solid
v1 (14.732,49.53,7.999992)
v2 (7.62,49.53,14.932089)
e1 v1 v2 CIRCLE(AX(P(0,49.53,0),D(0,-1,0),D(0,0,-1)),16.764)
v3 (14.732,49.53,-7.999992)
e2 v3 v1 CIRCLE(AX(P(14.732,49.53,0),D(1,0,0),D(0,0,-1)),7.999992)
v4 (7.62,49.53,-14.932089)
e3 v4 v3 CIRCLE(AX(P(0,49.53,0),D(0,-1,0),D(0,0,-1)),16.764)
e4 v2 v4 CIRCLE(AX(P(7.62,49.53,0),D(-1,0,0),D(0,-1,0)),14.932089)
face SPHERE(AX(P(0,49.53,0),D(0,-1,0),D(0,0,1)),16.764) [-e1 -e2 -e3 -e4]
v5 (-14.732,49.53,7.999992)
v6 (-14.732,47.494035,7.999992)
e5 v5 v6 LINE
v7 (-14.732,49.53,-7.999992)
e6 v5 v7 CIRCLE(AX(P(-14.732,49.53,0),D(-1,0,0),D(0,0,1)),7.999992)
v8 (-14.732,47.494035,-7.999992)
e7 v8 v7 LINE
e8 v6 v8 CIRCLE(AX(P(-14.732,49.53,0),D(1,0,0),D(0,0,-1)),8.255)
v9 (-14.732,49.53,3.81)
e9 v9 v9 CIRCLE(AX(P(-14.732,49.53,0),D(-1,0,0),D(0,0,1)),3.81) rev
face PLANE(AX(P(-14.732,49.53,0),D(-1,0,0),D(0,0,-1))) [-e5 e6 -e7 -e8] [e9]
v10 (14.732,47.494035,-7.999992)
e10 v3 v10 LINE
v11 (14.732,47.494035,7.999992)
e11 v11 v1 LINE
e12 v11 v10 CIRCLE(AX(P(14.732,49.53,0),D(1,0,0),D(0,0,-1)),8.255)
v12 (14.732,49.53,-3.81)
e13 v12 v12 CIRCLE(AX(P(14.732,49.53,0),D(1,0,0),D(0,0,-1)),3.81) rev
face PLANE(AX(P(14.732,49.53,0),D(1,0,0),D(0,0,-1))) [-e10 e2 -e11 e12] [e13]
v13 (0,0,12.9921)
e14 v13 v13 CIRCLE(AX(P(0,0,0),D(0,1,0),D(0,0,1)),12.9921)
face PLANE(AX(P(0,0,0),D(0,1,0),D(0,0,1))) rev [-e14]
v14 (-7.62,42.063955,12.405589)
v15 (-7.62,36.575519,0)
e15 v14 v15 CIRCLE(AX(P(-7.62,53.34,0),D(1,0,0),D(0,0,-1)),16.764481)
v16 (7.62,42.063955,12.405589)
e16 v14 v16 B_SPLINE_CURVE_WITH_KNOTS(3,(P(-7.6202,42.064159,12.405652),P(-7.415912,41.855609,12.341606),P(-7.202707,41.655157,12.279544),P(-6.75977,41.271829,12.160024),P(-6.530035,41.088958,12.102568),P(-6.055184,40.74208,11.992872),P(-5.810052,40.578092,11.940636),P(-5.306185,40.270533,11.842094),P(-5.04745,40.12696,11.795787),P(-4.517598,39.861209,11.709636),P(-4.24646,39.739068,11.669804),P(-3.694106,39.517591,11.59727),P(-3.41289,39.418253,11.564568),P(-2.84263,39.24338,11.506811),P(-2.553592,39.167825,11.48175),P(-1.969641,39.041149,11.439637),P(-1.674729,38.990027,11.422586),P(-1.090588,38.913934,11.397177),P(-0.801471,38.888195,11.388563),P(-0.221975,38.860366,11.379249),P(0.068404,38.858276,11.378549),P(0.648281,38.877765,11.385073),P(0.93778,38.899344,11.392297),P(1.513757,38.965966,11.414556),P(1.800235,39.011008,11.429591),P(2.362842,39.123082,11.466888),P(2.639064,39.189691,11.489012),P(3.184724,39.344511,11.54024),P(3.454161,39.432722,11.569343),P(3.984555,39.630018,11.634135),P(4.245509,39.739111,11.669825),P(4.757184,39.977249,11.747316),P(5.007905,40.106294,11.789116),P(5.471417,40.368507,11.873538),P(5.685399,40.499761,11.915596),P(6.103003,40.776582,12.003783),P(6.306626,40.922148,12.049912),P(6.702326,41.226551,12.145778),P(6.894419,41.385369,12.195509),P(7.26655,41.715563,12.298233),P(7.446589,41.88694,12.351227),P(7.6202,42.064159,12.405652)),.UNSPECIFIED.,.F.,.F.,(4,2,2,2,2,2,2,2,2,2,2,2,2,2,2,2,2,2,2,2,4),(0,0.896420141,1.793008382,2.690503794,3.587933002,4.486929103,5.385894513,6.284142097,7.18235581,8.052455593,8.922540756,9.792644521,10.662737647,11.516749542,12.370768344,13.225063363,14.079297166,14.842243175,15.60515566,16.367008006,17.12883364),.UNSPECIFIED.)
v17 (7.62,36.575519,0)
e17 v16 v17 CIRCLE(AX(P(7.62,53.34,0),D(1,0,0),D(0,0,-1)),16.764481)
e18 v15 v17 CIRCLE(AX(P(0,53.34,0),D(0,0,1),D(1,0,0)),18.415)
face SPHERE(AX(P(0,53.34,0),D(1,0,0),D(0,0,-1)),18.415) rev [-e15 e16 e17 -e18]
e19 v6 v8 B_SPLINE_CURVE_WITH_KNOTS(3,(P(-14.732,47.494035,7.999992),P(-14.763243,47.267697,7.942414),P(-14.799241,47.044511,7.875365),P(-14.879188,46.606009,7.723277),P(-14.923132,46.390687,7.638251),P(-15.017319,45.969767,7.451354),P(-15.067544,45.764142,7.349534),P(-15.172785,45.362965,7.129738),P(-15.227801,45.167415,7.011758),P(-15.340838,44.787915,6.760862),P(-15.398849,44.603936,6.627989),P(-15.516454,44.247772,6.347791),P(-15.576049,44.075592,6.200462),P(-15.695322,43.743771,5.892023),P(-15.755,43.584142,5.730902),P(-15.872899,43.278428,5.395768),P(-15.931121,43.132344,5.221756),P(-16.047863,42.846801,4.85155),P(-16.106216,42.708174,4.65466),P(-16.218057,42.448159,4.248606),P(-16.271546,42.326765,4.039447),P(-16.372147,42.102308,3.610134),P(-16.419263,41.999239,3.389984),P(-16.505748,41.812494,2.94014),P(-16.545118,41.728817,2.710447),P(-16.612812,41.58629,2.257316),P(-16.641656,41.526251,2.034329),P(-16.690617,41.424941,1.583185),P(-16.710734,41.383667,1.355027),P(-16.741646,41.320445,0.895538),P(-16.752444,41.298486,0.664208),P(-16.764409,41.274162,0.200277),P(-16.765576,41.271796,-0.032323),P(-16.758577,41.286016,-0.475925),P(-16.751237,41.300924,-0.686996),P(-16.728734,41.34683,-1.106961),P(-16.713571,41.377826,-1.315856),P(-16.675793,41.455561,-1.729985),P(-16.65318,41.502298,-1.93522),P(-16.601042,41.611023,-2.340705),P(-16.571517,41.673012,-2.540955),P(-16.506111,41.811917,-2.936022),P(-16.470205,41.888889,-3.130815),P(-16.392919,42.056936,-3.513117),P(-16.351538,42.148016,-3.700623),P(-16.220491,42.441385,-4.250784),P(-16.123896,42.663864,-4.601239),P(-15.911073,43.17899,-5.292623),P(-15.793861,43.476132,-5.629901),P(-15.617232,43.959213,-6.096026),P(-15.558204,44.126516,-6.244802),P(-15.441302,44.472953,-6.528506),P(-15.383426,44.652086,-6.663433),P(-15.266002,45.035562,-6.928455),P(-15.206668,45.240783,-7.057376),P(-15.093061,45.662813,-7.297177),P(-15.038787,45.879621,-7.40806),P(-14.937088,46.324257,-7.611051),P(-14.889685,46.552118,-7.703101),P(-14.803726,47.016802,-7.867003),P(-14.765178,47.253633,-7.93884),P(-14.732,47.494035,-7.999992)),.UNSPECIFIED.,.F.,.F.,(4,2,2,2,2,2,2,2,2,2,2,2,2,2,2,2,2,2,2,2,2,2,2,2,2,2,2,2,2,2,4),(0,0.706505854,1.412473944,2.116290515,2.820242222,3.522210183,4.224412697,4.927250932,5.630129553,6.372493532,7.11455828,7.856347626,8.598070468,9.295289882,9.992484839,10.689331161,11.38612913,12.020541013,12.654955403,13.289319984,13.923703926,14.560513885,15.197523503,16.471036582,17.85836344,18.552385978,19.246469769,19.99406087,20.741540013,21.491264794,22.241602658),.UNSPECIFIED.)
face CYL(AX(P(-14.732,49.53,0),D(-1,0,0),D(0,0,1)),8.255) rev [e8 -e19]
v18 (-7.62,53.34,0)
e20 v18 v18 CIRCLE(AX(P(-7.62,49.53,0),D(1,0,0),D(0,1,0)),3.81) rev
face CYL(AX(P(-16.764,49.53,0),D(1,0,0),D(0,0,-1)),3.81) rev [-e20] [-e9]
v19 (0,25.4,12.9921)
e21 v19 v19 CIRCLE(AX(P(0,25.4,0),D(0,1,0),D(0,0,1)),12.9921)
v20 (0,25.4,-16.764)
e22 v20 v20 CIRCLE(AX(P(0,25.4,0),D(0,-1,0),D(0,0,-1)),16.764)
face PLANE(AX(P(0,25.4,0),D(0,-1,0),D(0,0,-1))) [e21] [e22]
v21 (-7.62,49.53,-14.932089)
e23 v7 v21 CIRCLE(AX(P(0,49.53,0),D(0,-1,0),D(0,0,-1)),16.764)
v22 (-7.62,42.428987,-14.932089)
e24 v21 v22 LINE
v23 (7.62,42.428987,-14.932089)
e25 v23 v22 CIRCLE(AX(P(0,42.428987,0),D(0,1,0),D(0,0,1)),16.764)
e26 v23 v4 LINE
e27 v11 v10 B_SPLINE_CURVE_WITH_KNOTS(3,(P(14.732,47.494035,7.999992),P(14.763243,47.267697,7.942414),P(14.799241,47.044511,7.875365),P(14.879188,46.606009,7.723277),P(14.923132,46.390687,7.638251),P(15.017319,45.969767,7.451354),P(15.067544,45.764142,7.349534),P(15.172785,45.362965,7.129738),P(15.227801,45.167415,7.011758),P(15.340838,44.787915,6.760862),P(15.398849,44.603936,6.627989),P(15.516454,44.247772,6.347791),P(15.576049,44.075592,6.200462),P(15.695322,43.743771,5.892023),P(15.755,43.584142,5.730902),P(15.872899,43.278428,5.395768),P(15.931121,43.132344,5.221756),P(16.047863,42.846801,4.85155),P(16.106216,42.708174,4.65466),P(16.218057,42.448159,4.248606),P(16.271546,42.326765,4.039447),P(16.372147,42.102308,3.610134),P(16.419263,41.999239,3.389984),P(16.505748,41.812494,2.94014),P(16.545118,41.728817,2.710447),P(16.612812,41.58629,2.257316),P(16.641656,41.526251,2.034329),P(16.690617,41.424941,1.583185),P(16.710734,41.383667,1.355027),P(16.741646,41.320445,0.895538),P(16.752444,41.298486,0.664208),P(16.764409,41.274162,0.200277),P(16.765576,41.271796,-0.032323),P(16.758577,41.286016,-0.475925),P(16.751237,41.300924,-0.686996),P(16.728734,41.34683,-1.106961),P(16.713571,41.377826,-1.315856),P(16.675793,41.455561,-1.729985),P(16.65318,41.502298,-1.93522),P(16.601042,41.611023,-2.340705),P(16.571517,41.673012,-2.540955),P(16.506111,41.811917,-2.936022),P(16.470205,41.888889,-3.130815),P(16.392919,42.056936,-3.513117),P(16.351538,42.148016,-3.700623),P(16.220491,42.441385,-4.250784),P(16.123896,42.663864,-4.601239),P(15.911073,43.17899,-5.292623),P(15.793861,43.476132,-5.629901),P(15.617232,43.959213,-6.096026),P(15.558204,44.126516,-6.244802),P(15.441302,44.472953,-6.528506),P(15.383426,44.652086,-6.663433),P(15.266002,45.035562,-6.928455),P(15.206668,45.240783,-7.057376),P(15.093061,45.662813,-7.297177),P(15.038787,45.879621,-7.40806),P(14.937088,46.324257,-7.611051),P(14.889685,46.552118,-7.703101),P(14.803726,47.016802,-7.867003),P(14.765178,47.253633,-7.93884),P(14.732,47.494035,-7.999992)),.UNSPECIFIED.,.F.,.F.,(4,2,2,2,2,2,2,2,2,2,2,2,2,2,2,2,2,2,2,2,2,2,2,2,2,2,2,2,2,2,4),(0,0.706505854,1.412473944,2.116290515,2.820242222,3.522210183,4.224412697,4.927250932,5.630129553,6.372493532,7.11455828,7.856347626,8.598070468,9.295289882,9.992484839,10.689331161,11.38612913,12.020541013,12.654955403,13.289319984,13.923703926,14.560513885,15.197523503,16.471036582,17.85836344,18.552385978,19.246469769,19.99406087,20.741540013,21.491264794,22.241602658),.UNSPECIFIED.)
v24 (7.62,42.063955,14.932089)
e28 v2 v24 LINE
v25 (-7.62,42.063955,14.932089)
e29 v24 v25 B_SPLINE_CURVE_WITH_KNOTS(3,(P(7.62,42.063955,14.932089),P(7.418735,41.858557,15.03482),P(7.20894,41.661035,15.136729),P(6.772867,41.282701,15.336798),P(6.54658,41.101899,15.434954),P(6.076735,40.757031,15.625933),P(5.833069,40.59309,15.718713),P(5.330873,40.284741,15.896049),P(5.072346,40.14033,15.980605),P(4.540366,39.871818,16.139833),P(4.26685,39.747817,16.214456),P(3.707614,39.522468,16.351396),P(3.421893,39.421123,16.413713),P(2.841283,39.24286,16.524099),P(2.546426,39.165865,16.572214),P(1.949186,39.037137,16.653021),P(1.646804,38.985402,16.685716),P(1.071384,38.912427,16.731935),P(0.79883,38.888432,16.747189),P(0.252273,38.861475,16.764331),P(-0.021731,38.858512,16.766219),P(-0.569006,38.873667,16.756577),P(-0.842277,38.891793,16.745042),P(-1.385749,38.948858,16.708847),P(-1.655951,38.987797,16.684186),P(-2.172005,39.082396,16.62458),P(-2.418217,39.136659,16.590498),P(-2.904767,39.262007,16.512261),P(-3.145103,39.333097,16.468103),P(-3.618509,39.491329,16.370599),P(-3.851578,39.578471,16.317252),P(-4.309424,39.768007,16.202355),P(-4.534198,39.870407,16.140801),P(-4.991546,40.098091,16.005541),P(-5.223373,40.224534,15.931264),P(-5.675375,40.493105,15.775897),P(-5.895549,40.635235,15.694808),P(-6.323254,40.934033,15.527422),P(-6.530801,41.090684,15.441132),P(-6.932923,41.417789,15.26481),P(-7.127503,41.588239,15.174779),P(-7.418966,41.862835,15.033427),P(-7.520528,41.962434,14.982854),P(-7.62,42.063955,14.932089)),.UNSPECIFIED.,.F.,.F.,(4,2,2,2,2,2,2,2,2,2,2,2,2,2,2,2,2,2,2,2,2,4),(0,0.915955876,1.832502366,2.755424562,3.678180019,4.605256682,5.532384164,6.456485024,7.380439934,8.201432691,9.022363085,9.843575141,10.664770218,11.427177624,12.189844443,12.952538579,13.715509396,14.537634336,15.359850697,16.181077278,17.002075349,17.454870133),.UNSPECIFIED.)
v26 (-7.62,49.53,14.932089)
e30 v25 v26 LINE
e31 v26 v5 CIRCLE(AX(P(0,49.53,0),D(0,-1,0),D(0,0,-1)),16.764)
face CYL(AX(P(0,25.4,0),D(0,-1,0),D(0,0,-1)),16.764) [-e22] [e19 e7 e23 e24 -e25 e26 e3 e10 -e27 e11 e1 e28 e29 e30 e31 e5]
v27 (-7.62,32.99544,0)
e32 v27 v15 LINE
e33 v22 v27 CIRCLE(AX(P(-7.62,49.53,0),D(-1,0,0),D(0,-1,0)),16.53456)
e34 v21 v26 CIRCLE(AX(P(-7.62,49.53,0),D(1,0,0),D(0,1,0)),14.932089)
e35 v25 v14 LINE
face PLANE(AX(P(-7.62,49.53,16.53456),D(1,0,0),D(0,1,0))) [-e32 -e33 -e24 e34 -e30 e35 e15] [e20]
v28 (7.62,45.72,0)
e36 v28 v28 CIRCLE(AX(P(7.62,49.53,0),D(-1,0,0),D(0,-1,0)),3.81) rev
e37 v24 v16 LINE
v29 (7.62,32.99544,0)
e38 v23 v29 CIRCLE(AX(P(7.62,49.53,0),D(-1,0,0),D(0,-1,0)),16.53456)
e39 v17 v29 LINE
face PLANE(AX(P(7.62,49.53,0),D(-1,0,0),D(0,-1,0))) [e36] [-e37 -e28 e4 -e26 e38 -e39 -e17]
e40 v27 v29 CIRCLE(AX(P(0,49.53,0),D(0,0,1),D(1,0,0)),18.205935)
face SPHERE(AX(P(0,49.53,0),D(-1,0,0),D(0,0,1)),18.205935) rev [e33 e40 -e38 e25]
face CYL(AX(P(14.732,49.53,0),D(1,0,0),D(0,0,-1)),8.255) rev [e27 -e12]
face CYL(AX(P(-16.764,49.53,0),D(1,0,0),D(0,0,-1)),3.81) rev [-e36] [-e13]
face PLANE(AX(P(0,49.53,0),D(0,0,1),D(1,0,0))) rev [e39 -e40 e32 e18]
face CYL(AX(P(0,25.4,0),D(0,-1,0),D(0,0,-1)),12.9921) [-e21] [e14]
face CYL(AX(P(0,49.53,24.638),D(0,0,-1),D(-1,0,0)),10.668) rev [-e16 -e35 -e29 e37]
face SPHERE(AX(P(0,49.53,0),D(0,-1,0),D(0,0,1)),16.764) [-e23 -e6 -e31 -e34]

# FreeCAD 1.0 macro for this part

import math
import FreeCAD as App
import Part
import Sketcher
from FreeCAD import Vector
Q = App.Units.Quantity

doc = App.newDocument("Part")
params = doc.addObject("Spreadsheet::Sheet", "Params")
for row, (alias, value) in enumerate([
    ("sketch1_diameter", "1.023 in"),
    ("pad1_length", "1 in"),
    ("sketch2_radius", "0.66 in"),
    ("sketch2_width", "0.95 in"),
    ("revolution_angle", "360 deg"),
    ("sketch3_diameter", "0.3 in"),
    ("sketch4_width", "0.6 in"),
    ("groove_angle", "270 deg"),
    ("sketch5_width", "0.6 in"),
    ("sketch5_radius", "0.725 in"),
    ("groove2_angle", "270 deg"),
    ("sketch6_diameter", "0.65 in"),
    ("pocket2_length", "0.08 in"),
    ("sketch7_radius", "0.42 in"),
    ("sketch7_width", "0.6 in"),
    ("pocket3_length", "0.97 in"),
], start=1):
    params.set(f"A{row}", alias)
    params.set(f"B{row}", "=" + value)
    params.setAlias(f"B{row}", alias)

body = doc.addObject("PartDesign::Body", "Body")

sketch1 = doc.addObject("Sketcher::SketchObject", "Sketch")
body.addObject(sketch1)
sketch1.AttachmentSupport = (doc.XZ_Plane, [""])
sketch1.MapMode = "FlatFace"
sketch1.addGeometry(Part.Circle(Vector(0, 0, 0), Vector(0, 0, 1), 13), False)
sketch1.addConstraint(Sketcher.Constraint("Coincident", 0, 3, -1, 1))
sketch1.addConstraint(Sketcher.Constraint("Diameter", 0, Q("1.023 in")))
sketch1.setExpression("Constraints[1]", "Params.sketch1_diameter")
pad1 = doc.addObject("PartDesign::Pad", "Pad")
body.addObject(pad1)
pad1.Profile = sketch1
pad1.setExpression("Length", "Params.pad1_length")
pad1.Reversed = True

sketch2 = doc.addObject("Sketcher::SketchObject", "Sketch001")
body.addObject(sketch2)
sketch2.AttachmentSupport = (doc.YZ_Plane, [""])
sketch2.MapMode = "FlatFace"
sketch2.addGeometry(Part.LineSegment(Vector(50, 17, 0), Vector(25, 17, 0)), False)
sketch2.addGeometry(Part.LineSegment(Vector(25, 17, 0), Vector(25, 0, 0)), False)
sketch2.addGeometry(Part.LineSegment(Vector(25, 0, 0), Vector(66, 0, 0)), False)
sketch2.addGeometry(Part.ArcOfCircle(Part.Circle(Vector(50, 0, 0), Vector(0, 0, 1), 17), math.radians(0), math.radians(90)), False)
sketch2.addConstraint(Sketcher.Constraint("Coincident", 0, 2, 1, 1))
sketch2.addConstraint(Sketcher.Constraint("Coincident", 1, 2, 2, 1))
sketch2.addConstraint(Sketcher.Constraint("Coincident", 2, 2, 3, 1))
sketch2.addConstraint(Sketcher.Constraint("Tangent", 3, 2, 0, 1))
sketch2.addConstraint(Sketcher.Constraint("Horizontal", 0))
sketch2.addConstraint(Sketcher.Constraint("Vertical", 1))
sketch2.addConstraint(Sketcher.Constraint("Horizontal", 2))
sketch2.addConstraint(Sketcher.Constraint("PointOnObject", 3, 3, -1))
sketch2.addConstraint(Sketcher.Constraint("PointOnObject", 1, 2, -1))
sketch2.addConstraint(Sketcher.Constraint("Radius", 3, Q("0.66 in")))
sketch2.addConstraint(Sketcher.Constraint("DistanceX", -1, 1, 0, 2, Q("1 in")))
sketch2.addConstraint(Sketcher.Constraint("DistanceX", 0, 2, 0, 1, Q("0.95 in")))
sketch2.setExpression("Constraints[9]", "Params.sketch2_radius")
sketch2.setExpression("Constraints[11]", "Params.sketch2_width")
revolution = doc.addObject("PartDesign::Revolution", "Revolution")
body.addObject(revolution)
revolution.Profile = sketch2
revolution.ReferenceAxis = (sketch2, ["H_Axis"])
revolution.setExpression("Angle", "Params.revolution_angle")

sketch3 = doc.addObject("Sketcher::SketchObject", "Sketch002")
body.addObject(sketch3)
sketch3.AttachmentSupport = (doc.YZ_Plane, [""])
sketch3.MapMode = "FlatFace"
sketch3.addGeometry(Part.Circle(Vector(49.5, 0, 0), Vector(0, 0, 1), 3.8), False)
sketch3.addConstraint(Sketcher.Constraint("PointOnObject", 0, 3, -1))
sketch3.addConstraint(Sketcher.Constraint("Diameter", 0, Q("0.3 in")))
sketch3.addConstraint(Sketcher.Constraint("DistanceX", -1, 1, 0, 3, Q("1.95 in")))
sketch3.setExpression("Constraints[1]", "Params.sketch3_diameter")
pocket1 = doc.addObject("PartDesign::Pocket", "Pocket")
body.addObject(pocket1)
pocket1.Profile = sketch3
pocket1.Type = "ThroughAll"
pocket1.Midplane = True

sketch4 = doc.addObject("Sketcher::SketchObject", "Sketch003")
body.addObject(sketch4)
sketch4.AttachmentSupport = (doc.XY_Plane, [""])
sketch4.MapMode = "FlatFace"
sketch4.addGeometry(Part.LineSegment(Vector(-8, 50, 0), Vector(-8, 33, 0)), False)
sketch4.addGeometry(Part.ArcOfCircle(Part.Circle(Vector(0, 50, 0), Vector(0, 0, 1), 18), math.radians(-115), math.radians(-65)), False)
sketch4.addGeometry(Part.LineSegment(Vector(8, 33, 0), Vector(8, 50, 0)), False)
sketch4.addGeometry(Part.LineSegment(Vector(8, 50, 0), Vector(-8, 50, 0)), False)
sketch4.addGeometry(Part.LineSegment(Vector(-8, 50, 0), Vector(8, 50, 0)), True)
sketch4.addConstraint(Sketcher.Constraint("Coincident", 0, 2, 1, 1))
sketch4.addConstraint(Sketcher.Constraint("Coincident", 1, 2, 2, 1))
sketch4.addConstraint(Sketcher.Constraint("Coincident", 2, 2, 3, 1))
sketch4.addConstraint(Sketcher.Constraint("Coincident", 3, 2, 0, 1))
sketch4.addConstraint(Sketcher.Constraint("Vertical", 0))
sketch4.addConstraint(Sketcher.Constraint("Vertical", 2))
sketch4.addConstraint(Sketcher.Constraint("Horizontal", 3))
sketch4.addConstraint(Sketcher.Constraint("Horizontal", 4))
sketch4.addConstraint(Sketcher.Constraint("Coincident", 4, 1, 3, 2))
sketch4.addConstraint(Sketcher.Constraint("Symmetric", 0, 2, 1, 2, -2))
sketch4.addConstraint(Sketcher.Constraint("Horizontal", 1, 3, 2, 2))
sketch4.addConstraint(Sketcher.Constraint("Vertical", 1, 2, 4, 2))
sketch4.addConstraint(Sketcher.Constraint("DistanceX", 3, 2, 3, 1, Q("0.6 in")))
sketch4.addConstraint(Sketcher.Constraint("DistanceY", -1, 1, 1, 3, Q("1.95 in")))
sketch4.addConstraint(Sketcher.Constraint("Radius", 1, 18.205935))
sketch4.setExpression("Constraints[12]", "Params.sketch4_width")
groove = doc.addObject("PartDesign::Groove", "Groove")
body.addObject(groove)
groove.Profile = sketch4
groove.ReferenceAxis = (sketch4, ["Axis0"])
groove.setExpression("Angle", "Params.groove_angle")

sketch5 = doc.addObject("Sketcher::SketchObject", "Sketch004")
body.addObject(sketch5)
sketch5.AttachmentSupport = (doc.XY_Plane, [""])
sketch5.MapMode = "FlatFace"
sketch5.addGeometry(Part.LineSegment(Vector(8, 53, 0), Vector(-8, 53, 0)), False)
sketch5.addGeometry(Part.LineSegment(Vector(-8, 53, 0), Vector(-8, 37, 0)), False)
sketch5.addGeometry(Part.ArcOfCircle(Part.Circle(Vector(0, 53, 0), Vector(0, 0, 1), 18), math.radians(-114), math.radians(-66)), False)
sketch5.addGeometry(Part.LineSegment(Vector(8, 37, 0), Vector(8, 53, 0)), False)
sketch5.addGeometry(Part.LineSegment(Vector(8, 53, 0), Vector(-8, 53, 0)), True)
sketch5.addConstraint(Sketcher.Constraint("Coincident", 0, 2, 1, 1))
sketch5.addConstraint(Sketcher.Constraint("Coincident", 1, 2, 2, 1))
sketch5.addConstraint(Sketcher.Constraint("Coincident", 2, 2, 3, 1))
sketch5.addConstraint(Sketcher.Constraint("Coincident", 3, 2, 0, 1))
sketch5.addConstraint(Sketcher.Constraint("Horizontal", 0))
sketch5.addConstraint(Sketcher.Constraint("Vertical", 1))
sketch5.addConstraint(Sketcher.Constraint("Vertical", 3))
sketch5.addConstraint(Sketcher.Constraint("Horizontal", 4))
sketch5.addConstraint(Sketcher.Constraint("Coincident", 4, 1, 3, 2))
sketch5.addConstraint(Sketcher.Constraint("Symmetric", 1, 2, 2, 2, -2))
sketch5.addConstraint(Sketcher.Constraint("Horizontal", 2, 3, 0, 2))
sketch5.addConstraint(Sketcher.Constraint("Vertical", 1, 2, 4, 2))
sketch5.addConstraint(Sketcher.Constraint("DistanceX", 0, 2, 0, 1, Q("0.6 in")))
sketch5.addConstraint(Sketcher.Constraint("Radius", 2, Q("0.725 in")))
sketch5.addConstraint(Sketcher.Constraint("DistanceY", -1, 1, 2, 3, Q("2.1 in")))
sketch5.setExpression("Constraints[12]", "Params.sketch5_width")
sketch5.setExpression("Constraints[13]", "Params.sketch5_radius")
groove2 = doc.addObject("PartDesign::Groove", "Groove001")
body.addObject(groove2)
groove2.Profile = sketch5
groove2.ReferenceAxis = (sketch5, ["Axis0"])
groove2.setExpression("Angle", "Params.groove2_angle")

sketch6 = doc.addObject("Sketcher::SketchObject", "Sketch005")
body.addObject(sketch6)
sketch6.AttachmentSupport = (doc.YZ_Plane, [""])
sketch6.MapMode = "FlatFace"
sketch6.AttachmentOffset = App.Placement(Vector(0, 0, 0.66 * 25.4), App.Rotation())
sketch6.addGeometry(Part.Circle(Vector(50, 0, 0), Vector(0, 0, 1), 8), False)
sketch6.addConstraint(Sketcher.Constraint("PointOnObject", 0, 3, -1))
sketch6.addConstraint(Sketcher.Constraint("Diameter", 0, Q("0.65 in")))
sketch6.addConstraint(Sketcher.Constraint("DistanceX", -1, 1, 0, 3, Q("1.95 in")))
sketch6.setExpression("Constraints[1]", "Params.sketch6_diameter")
pocket2 = doc.addObject("PartDesign::Pocket", "Pocket001")
body.addObject(pocket2)
pocket2.Profile = sketch6
pocket2.setExpression("Length", "Params.pocket2_length")
doc.recompute()

mirrored = doc.addObject("PartDesign::Mirrored", "Mirrored")
body.addObject(mirrored)
mirrored.Originals = [pocket2]
mirrored.MirrorPlane = (doc.YZ_Plane, [""])
body.Tip = mirrored

sketch7 = doc.addObject("Sketcher::SketchObject", "Sketch006")
body.addObject(sketch7)
sketch7.AttachmentSupport = (doc.XY_Plane, [""])
sketch7.MapMode = "FlatFace"
sketch7.addGeometry(Part.LineSegment(Vector(-8, 50, 0), Vector(-8, 42, 0)), False)
sketch7.addGeometry(Part.ArcOfCircle(Part.Circle(Vector(0, 50, 0), Vector(0, 0, 1), 11), math.radians(-136), math.radians(-44)), False)
sketch7.addGeometry(Part.LineSegment(Vector(8, 42, 0), Vector(8, 50, 0)), False)
sketch7.addGeometry(Part.LineSegment(Vector(8, 50, 0), Vector(-8, 50, 0)), False)
sketch7.addConstraint(Sketcher.Constraint("Coincident", 0, 2, 1, 1))
sketch7.addConstraint(Sketcher.Constraint("Coincident", 1, 2, 2, 1))
sketch7.addConstraint(Sketcher.Constraint("Coincident", 2, 2, 3, 1))
sketch7.addConstraint(Sketcher.Constraint("Coincident", 3, 2, 0, 1))
sketch7.addConstraint(Sketcher.Constraint("Vertical", 0))
sketch7.addConstraint(Sketcher.Constraint("Vertical", 2))
sketch7.addConstraint(Sketcher.Constraint("Horizontal", 3))
sketch7.addConstraint(Sketcher.Constraint("Symmetric", 0, 2, 1, 2, -2))
sketch7.addConstraint(Sketcher.Constraint("Horizontal", 1, 3, 2, 2))
sketch7.addConstraint(Sketcher.Constraint("Radius", 1, Q("0.42 in")))
sketch7.addConstraint(Sketcher.Constraint("DistanceX", 3, 2, 3, 1, Q("0.6 in")))
sketch7.addConstraint(Sketcher.Constraint("DistanceY", -1, 1, 1, 3, Q("1.95 in")))
sketch7.setExpression("Constraints[9]", "Params.sketch7_radius")
sketch7.setExpression("Constraints[10]", "Params.sketch7_width")
pocket3 = doc.addObject("PartDesign::Pocket", "Pocket002")
body.addObject(pocket3)
pocket3.Profile = sketch7
pocket3.setExpression("Length", "Params.pocket3_length")
pocket3.Reversed = True

doc.recompute()
